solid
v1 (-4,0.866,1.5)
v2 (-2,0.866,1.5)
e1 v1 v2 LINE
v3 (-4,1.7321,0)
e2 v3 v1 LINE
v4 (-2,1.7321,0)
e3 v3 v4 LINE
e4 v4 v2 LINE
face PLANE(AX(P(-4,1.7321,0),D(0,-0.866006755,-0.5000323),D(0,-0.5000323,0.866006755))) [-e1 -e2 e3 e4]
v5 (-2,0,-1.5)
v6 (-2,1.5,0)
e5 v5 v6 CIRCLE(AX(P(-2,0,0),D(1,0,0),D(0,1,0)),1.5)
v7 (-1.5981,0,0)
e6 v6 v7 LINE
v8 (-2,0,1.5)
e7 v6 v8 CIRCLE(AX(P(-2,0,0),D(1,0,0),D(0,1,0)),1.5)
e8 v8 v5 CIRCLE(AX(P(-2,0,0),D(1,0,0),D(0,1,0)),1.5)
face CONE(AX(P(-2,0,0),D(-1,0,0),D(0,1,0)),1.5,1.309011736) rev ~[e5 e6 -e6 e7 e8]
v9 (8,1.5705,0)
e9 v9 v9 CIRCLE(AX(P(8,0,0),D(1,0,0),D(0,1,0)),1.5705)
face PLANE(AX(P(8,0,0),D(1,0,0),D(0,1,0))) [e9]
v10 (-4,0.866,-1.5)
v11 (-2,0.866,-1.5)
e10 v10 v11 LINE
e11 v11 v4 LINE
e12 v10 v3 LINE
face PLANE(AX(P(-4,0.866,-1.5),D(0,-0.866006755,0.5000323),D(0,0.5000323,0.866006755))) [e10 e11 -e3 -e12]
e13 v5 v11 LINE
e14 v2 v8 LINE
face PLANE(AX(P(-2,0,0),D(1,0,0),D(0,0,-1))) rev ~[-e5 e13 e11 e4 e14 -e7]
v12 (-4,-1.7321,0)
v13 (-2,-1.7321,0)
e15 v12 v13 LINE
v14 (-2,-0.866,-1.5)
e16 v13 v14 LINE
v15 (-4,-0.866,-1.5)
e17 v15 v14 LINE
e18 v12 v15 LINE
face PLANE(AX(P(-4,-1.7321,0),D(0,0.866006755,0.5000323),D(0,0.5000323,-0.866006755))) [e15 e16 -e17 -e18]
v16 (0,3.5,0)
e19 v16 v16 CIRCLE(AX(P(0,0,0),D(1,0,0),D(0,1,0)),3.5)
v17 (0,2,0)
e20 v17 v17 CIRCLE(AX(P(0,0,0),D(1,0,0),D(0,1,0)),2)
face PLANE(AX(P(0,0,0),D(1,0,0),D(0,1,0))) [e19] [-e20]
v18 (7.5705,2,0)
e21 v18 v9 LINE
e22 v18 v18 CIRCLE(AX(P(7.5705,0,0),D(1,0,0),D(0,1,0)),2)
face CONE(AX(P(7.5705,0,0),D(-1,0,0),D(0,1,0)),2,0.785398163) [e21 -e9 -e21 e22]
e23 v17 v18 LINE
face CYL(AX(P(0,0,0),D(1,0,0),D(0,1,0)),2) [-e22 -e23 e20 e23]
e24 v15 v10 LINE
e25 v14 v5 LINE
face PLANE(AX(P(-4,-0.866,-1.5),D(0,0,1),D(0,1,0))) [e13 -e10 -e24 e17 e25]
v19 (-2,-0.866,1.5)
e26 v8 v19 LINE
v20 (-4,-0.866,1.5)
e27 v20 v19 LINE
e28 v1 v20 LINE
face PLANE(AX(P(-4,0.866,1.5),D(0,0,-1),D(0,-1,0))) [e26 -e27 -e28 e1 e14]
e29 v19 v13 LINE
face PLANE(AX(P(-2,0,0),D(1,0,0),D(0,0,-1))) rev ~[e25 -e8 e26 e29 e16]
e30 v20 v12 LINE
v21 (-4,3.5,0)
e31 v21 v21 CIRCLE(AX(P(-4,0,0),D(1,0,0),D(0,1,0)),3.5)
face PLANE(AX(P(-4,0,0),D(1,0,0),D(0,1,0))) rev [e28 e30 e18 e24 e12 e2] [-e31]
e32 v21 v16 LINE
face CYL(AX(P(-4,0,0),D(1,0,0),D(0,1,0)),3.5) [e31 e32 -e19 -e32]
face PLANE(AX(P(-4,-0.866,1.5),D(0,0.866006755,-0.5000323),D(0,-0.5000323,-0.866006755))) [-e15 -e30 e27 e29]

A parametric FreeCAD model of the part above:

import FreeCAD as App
import Part
import Sketcher
Q = App.Units.Quantity


def add_polygon(sketch, points):
    """Adds a closed chain of lines whose ends are joined by coincident constraints."""
    first, n = sketch.GeometryCount, len(points)
    for a, b in zip(points, points[1:] + points[:1]):
        sketch.addGeometry(Part.LineSegment(App.Vector(*a, 0), App.Vector(*b, 0)), False)
    for i in range(n):
        sketch.addConstraint(Sketcher.Constraint("Coincident", first + i, 2, first + (i + 1) % n, 1))

doc = App.newDocument("Part")
body = doc.addObject("PartDesign::Body", "Body")

# Sketch on XY plane
sketch1 = body.newObject("Sketcher::SketchObject", "Sketch")
sketch1.AttachmentSupport = (doc.getObject("XY_Plane"), [""])
sketch1.MapMode = "FlatFace"
add_polygon(sketch1, [(-4, 0), (8, 0), (8, 1.5705), (7.5705, 2), (0, 2), (0, 3.5), (-4, 3.5)])  # lines 0-6
sketch1.addConstraint(Sketcher.Constraint("Horizontal", 0))
sketch1.addConstraint(Sketcher.Constraint("Vertical", 1))
sketch1.addConstraint(Sketcher.Constraint("Horizontal", 3))
sketch1.addConstraint(Sketcher.Constraint("Vertical", 4))
sketch1.addConstraint(Sketcher.Constraint("Horizontal", 5))
sketch1.addConstraint(Sketcher.Constraint("Vertical", 6))
sketch1.addConstraint(Sketcher.Constraint("PointOnObject", 0, 2, -1))
sketch1.addConstraint(Sketcher.Constraint("PointOnObject", 3, 2, -2))
sketch1.addConstraint(Sketcher.Constraint("DistanceX", 0, 1, 0, 2, 12.0))
sketch1.addConstraint(Sketcher.Constraint("DistanceX", 5, 2, 5, 1, 4.0))
sketch1.addConstraint(Sketcher.Constraint("Angle", 2, Q("135 deg")))
sketch1.addConstraint(Sketcher.Constraint("DistanceY", 4, 1, 4, 2, 1.5))
sketch1.addConstraint(Sketcher.Constraint("DistanceY", 6, 2, 6, 1, 3.5))
sketch1.addConstraint(Sketcher.Constraint("DistanceX", 3, 2, 3, 1, 7.5705))
revolution = body.newObject("PartDesign::Revolution", "Revolution")
revolution.Profile = sketch1
revolution.ReferenceAxis = (sketch1, ["H_Axis"])
revolution.Angle = 360

# Sketch on XY plane
sketch2 = body.newObject("Sketcher::SketchObject", "Sketch001")
sketch2.AttachmentSupport = (doc.getObject("XY_Plane"), [""])
sketch2.MapMode = "FlatFace"
add_polygon(sketch2, [(-4, 0), (-1.5981, 0), (-2, 1.5), (-4, 1.5)])  # lines 0-3
sketch2.addConstraint(Sketcher.Constraint("Horizontal", 0))
sketch2.addConstraint(Sketcher.Constraint("Horizontal", 2))
sketch2.addConstraint(Sketcher.Constraint("Vertical", 3))
sketch2.addConstraint(Sketcher.Constraint("PointOnObject", 0, 2, -1))
sketch2.addConstraint(Sketcher.Constraint("DistanceX", 2, 2, 2, 1, 2.0))
sketch2.addConstraint(Sketcher.Constraint("Angle", 1, Q("104.9992 deg")))
sketch2.addConstraint(Sketcher.Constraint("DistanceY", 3, 2, 3, 1, 1.5))
sketch2.addConstraint(Sketcher.Constraint("DistanceX", 1, 2, -1, 1, 2.0))
groove = body.newObject("PartDesign::Groove", "Groove")
groove.Profile = sketch2
groove.ReferenceAxis = (sketch2, ["H_Axis"])
groove.Angle = 360

# Sketch on YZ plane
sketch3 = body.newObject("Sketcher::SketchObject", "Sketch002")
sketch3.AttachmentSupport = (doc.getObject("YZ_Plane"), [""])
sketch3.MapMode = "FlatFace"
sketch3.AttachmentOffset = App.Placement(App.Vector(0, 0, -4), App.Rotation())
add_polygon(sketch3, [(1.7321, 0), (0.866, 1.5), (-0.866, 1.5), (-1.7321, 0), (-0.866, -1.5), (0.866, -1.5)])  # lines 0-5
sketch3.addConstraint(Sketcher.Constraint("Horizontal", 1))
sketch3.addConstraint(Sketcher.Constraint("Horizontal", 4))
sketch3.addConstraint(Sketcher.Constraint("Symmetric", 0, 2, 3, 2, -1, 1))
sketch3.addConstraint(Sketcher.Constraint("Symmetric", 2, 2, 5, 2, -1, 1))
sketch3.addConstraint(Sketcher.Constraint("PointOnObject", 2, 2, -1))
sketch3.addConstraint(Sketcher.Constraint("Parallel", 2, 5))
sketch3.addConstraint(Sketcher.Constraint("Vertical", 1, 2, 3, 2))
sketch3.addConstraint(Sketcher.Constraint("DistanceY", 3, 2, 1, 2, 3.0))
sketch3.addConstraint(Sketcher.Constraint("DistanceX", 1, 2, 1, 1, 1.732))
sketch3.addConstraint(Sketcher.Constraint("Distance", 0, 1.732))
pocket1 = body.newObject("PartDesign::Pocket", "Pocket")
pocket1.Profile = sketch3
pocket1.Length = 2
pocket1.Reversed = True

doc.recompute()
